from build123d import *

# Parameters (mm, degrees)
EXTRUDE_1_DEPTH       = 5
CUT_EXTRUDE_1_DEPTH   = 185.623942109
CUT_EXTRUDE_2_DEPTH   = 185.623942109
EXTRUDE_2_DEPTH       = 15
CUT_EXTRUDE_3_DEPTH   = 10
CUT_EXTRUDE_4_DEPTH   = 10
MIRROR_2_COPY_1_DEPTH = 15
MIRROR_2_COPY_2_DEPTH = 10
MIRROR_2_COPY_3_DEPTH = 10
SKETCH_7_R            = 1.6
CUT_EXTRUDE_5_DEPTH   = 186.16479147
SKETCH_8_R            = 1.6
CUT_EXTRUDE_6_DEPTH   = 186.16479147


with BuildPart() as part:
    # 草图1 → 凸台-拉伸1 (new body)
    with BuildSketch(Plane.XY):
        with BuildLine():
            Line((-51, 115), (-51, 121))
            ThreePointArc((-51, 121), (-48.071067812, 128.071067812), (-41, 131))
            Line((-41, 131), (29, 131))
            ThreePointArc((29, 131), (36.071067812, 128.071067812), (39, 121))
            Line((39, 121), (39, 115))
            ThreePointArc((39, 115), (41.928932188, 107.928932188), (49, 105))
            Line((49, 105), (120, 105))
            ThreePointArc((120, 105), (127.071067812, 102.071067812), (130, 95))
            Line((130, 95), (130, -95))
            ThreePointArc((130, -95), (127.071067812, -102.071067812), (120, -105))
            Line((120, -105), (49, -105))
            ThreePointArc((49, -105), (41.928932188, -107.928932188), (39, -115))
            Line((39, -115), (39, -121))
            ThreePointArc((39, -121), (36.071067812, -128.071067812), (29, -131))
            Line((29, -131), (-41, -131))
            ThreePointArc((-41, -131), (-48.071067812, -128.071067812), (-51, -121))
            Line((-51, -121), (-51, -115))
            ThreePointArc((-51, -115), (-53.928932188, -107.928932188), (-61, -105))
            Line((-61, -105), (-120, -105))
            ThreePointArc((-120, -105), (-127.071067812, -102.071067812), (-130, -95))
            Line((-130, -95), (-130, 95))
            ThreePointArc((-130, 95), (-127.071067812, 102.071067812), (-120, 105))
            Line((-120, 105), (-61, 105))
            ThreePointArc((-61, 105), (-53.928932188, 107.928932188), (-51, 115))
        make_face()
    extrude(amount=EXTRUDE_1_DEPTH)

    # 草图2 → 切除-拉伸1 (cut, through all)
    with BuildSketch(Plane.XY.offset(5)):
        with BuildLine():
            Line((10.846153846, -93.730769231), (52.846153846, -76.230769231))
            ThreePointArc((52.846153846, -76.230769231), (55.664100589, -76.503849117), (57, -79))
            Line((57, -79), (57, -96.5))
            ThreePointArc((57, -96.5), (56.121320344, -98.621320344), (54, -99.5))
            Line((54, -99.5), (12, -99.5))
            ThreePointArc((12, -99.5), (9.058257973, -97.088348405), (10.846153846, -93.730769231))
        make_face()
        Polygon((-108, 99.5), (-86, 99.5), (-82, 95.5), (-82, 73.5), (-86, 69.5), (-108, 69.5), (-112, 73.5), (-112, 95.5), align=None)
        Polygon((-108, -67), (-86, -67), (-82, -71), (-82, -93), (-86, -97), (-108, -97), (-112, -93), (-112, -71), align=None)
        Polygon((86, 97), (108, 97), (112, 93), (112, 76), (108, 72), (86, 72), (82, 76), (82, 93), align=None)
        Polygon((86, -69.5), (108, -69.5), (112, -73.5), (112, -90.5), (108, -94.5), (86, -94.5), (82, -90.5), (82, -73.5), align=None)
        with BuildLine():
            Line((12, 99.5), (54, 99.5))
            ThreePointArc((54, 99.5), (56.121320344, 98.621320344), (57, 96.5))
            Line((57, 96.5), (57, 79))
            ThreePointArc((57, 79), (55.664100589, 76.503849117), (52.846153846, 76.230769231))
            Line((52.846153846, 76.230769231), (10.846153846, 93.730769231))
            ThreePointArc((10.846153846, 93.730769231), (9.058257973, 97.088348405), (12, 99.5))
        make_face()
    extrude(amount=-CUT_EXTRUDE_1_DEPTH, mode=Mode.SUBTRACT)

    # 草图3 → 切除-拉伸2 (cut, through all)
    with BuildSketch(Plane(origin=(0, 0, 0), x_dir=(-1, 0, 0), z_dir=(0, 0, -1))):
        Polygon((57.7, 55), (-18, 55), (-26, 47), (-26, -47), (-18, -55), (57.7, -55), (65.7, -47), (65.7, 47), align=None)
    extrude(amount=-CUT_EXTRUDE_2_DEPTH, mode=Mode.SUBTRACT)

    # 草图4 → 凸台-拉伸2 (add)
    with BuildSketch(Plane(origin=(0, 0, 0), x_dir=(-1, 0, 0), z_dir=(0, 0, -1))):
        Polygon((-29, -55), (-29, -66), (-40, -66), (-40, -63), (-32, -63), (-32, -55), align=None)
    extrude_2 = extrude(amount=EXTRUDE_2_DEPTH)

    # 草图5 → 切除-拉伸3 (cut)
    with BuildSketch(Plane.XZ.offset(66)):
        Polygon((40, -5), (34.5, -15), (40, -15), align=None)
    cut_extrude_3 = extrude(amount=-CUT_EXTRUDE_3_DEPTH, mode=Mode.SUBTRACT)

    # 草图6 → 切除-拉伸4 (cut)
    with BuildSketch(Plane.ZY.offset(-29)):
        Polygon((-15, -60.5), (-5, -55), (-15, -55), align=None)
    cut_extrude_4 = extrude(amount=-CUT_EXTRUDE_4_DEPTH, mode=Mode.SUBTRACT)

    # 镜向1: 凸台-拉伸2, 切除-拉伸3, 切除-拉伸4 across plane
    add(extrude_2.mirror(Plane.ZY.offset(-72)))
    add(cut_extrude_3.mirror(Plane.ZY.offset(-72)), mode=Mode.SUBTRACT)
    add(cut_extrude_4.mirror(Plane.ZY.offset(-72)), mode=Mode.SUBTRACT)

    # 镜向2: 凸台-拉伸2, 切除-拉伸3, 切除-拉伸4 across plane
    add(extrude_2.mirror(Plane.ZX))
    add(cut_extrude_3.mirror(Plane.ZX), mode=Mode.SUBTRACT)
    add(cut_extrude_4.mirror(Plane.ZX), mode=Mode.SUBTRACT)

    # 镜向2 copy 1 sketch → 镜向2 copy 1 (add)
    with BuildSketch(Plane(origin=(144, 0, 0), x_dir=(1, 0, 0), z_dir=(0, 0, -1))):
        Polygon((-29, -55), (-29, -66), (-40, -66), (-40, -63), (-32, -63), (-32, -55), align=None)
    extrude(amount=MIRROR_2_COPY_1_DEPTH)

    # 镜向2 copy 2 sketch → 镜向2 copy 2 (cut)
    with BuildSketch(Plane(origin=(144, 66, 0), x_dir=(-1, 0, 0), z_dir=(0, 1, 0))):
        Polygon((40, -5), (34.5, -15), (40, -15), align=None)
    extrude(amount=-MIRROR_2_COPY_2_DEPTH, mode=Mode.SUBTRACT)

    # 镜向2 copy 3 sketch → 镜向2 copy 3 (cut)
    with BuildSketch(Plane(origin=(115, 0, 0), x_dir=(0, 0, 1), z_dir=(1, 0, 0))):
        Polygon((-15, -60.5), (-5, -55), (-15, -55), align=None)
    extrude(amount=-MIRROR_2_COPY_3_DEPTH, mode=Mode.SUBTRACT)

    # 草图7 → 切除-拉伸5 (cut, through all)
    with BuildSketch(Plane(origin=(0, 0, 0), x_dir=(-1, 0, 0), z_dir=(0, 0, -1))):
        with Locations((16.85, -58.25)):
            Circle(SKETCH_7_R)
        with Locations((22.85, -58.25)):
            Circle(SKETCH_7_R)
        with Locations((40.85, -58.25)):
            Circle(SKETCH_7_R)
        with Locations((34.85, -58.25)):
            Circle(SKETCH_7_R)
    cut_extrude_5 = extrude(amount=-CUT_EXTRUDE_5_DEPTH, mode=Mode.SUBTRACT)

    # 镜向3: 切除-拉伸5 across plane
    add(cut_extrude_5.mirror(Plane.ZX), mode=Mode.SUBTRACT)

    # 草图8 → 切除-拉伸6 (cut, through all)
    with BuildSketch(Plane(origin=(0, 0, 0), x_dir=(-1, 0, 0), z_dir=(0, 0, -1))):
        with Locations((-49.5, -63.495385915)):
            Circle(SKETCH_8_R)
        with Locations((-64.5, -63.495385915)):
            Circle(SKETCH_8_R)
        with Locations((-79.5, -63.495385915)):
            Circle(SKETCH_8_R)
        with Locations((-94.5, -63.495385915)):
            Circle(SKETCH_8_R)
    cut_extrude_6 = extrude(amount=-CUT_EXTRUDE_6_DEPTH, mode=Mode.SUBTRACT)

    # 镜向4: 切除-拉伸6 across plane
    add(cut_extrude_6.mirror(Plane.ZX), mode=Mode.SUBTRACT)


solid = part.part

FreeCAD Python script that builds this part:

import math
import FreeCAD as App
import Part
import Sketcher

V = App.Vector

doc = App.newDocument("Part")
body = doc.addObject("PartDesign::Body", "Body")

# Sketch on XY plane
sketch1 = doc.addObject("Sketcher::SketchObject", "Sketch")
body.addObject(sketch1)
sketch1.AttachmentSupport = (doc.XY_Plane, [""])
sketch1.MapMode = "FlatFace"
sketch1.addGeometry([
    Part.LineSegment(V(-51, 121, 0), V(-51, 115, 0)),  # 0
    Part.ArcOfCircle(Part.Circle(V(-61, 115, 0), V(0, 0, 1), 10), math.radians(-90), math.radians(0)),  # 1
    Part.LineSegment(V(-61, 105, 0), V(-120, 105, 0)),  # 2
    Part.ArcOfCircle(Part.Circle(V(-120, 95, 0), V(0, 0, 1), 10), math.radians(90), math.radians(180)),  # 3
    Part.LineSegment(V(-130, 95, 0), V(-130, -95, 0)),  # 4
    Part.ArcOfCircle(Part.Circle(V(-120, -95, 0), V(0, 0, 1), 10), math.radians(180), math.radians(270)),  # 5
    Part.LineSegment(V(-120, -105, 0), V(-61, -105, 0)),  # 6
    Part.ArcOfCircle(Part.Circle(V(-61, -115, 0), V(0, 0, 1), 10), math.radians(0), math.radians(90)),  # 7
    Part.LineSegment(V(-51, -115, 0), V(-51, -121, 0)),  # 8
    Part.ArcOfCircle(Part.Circle(V(-41, -121, 0), V(0, 0, 1), 10), math.radians(180), math.radians(270)),  # 9
    Part.LineSegment(V(-41, -131, 0), V(29, -131, 0)),  # 10
    Part.ArcOfCircle(Part.Circle(V(29, -121, 0), V(0, 0, 1), 10), math.radians(-90), math.radians(0)),  # 11
    Part.LineSegment(V(39, -121, 0), V(39, -115, 0)),  # 12
    Part.ArcOfCircle(Part.Circle(V(49, -115, 0), V(0, 0, 1), 10), math.radians(90), math.radians(180)),  # 13
    Part.LineSegment(V(49, -105, 0), V(120, -105, 0)),  # 14
    Part.ArcOfCircle(Part.Circle(V(120, -95, 0), V(0, 0, 1), 10), math.radians(-90), math.radians(0)),  # 15
    Part.LineSegment(V(130, -95, 0), V(130, 95, 0)),  # 16
    Part.ArcOfCircle(Part.Circle(V(120, 95, 0), V(0, 0, 1), 10), math.radians(0), math.radians(90)),  # 17
    Part.LineSegment(V(120, 105, 0), V(49, 105, 0)),  # 18
    Part.ArcOfCircle(Part.Circle(V(49, 115, 0), V(0, 0, 1), 10), math.radians(180), math.radians(270)),  # 19
    Part.LineSegment(V(39, 115, 0), V(39, 121, 0)),  # 20
    Part.ArcOfCircle(Part.Circle(V(29, 121, 0), V(0, 0, 1), 10), math.radians(0), math.radians(90)),  # 21
    Part.LineSegment(V(29, 131, 0), V(-41, 131, 0)),  # 22
    Part.ArcOfCircle(Part.Circle(V(-41, 121, 0), V(0, 0, 1), 10), math.radians(90), math.radians(180)),  # 23
], False)
sketch1.addConstraint([
    Sketcher.Constraint("Tangent", 0, 2, 1, 2),
    Sketcher.Constraint("Tangent", 1, 1, 2, 1),
    Sketcher.Constraint("Tangent", 2, 2, 3, 1),
    Sketcher.Constraint("Tangent", 3, 2, 4, 1),
    Sketcher.Constraint("Tangent", 4, 2, 5, 1),
    Sketcher.Constraint("Tangent", 5, 2, 6, 1),
    Sketcher.Constraint("Tangent", 6, 2, 7, 2),
    Sketcher.Constraint("Tangent", 7, 1, 8, 1),
    Sketcher.Constraint("Tangent", 8, 2, 9, 1),
    Sketcher.Constraint("Tangent", 9, 2, 10, 1),
    Sketcher.Constraint("Tangent", 10, 2, 11, 1),
    Sketcher.Constraint("Tangent", 11, 2, 12, 1),
    Sketcher.Constraint("Tangent", 12, 2, 13, 2),
    Sketcher.Constraint("Tangent", 13, 1, 14, 1),
    Sketcher.Constraint("Tangent", 14, 2, 15, 1),
    Sketcher.Constraint("Tangent", 15, 2, 16, 1),
    Sketcher.Constraint("Tangent", 16, 2, 17, 1),
    Sketcher.Constraint("Tangent", 17, 2, 18, 1),
    Sketcher.Constraint("Tangent", 18, 2, 19, 2),
    Sketcher.Constraint("Tangent", 19, 1, 20, 1),
    Sketcher.Constraint("Tangent", 20, 2, 21, 1),
    Sketcher.Constraint("Tangent", 21, 2, 22, 1),
    Sketcher.Constraint("Tangent", 22, 2, 23, 1),
    Sketcher.Constraint("Tangent", 23, 2, 0, 1),
    Sketcher.Constraint("Vertical", 0),
    Sketcher.Constraint("Horizontal", 2),
    Sketcher.Constraint("Vertical", 4),
    Sketcher.Constraint("Horizontal", 6),
    Sketcher.Constraint("Vertical", 8),
    Sketcher.Constraint("Horizontal", 10),
    Sketcher.Constraint("Vertical", 12),
    Sketcher.Constraint("Horizontal", 14),
    Sketcher.Constraint("Vertical", 16),
    Sketcher.Constraint("Horizontal", 18),
    Sketcher.Constraint("Vertical", 20),
    Sketcher.Constraint("Horizontal", 22),
    Sketcher.Constraint("Equal", 1, 3),
    Sketcher.Constraint("Equal", 3, 5),
    Sketcher.Constraint("Equal", 5, 7),
    Sketcher.Constraint("Equal", 7, 9),
    Sketcher.Constraint("Equal", 9, 11),
    Sketcher.Constraint("Equal", 11, 13),
    Sketcher.Constraint("Equal", 13, 15),
    Sketcher.Constraint("Equal", 15, 17),
    Sketcher.Constraint("Equal", 17, 19),
    Sketcher.Constraint("Equal", 19, 21),
    Sketcher.Constraint("Equal", 21, 23),
    Sketcher.Constraint("Symmetric", 3, 3, 15, 3, -1, 1),
    Sketcher.Constraint("Symmetric", 1, 3, 7, 3, -1),
    Sketcher.Constraint("Symmetric", 13, 3, 19, 3, -1),
    Sketcher.Constraint("Equal", 0, 8),
    Sketcher.Constraint("Radius", 1, 10.0),
    Sketcher.Constraint("DistanceX", 2, 2, 2, 1, 59.0),
    Sketcher.Constraint("DistanceX", 10, 1, 10, 2, 70.0),
    Sketcher.Constraint("DistanceX", 14, 1, 14, 2, 71.0),
    Sketcher.Constraint("DistanceY", 0, 2, 0, 1, 6.0),
    Sketcher.Constraint("DistanceY", 4, 2, 4, 1, 190.0),
])
pad1 = doc.addObject("PartDesign::Pad", "Pad")
body.addObject(pad1)
pad1.Profile = sketch1
pad1.Length = 5

# Sketch on XY plane
sketch2 = doc.addObject("Sketcher::SketchObject", "Sketch001")
body.addObject(sketch2)
sketch2.AttachmentSupport = (doc.XY_Plane, [""])
sketch2.MapMode = "FlatFace"
sketch2.AttachmentOffset = App.Placement(V(0, 0, 5), App.Rotation())
sketch2.addGeometry([
    Part.LineSegment(V(52.846154, -76.230769, 0), V(10.846154, -93.730769, 0)),  # 0
    Part.ArcOfCircle(Part.Circle(V(12, -96.5, 0), V(0, 0, 1), 3), math.radians(112.619865), math.radians(270)),  # 1
    Part.LineSegment(V(12, -99.5, 0), V(54, -99.5, 0)),  # 2
    Part.ArcOfCircle(Part.Circle(V(54, -96.5, 0), V(0, 0, 1), 3), math.radians(-90), math.radians(0)),  # 3
    Part.LineSegment(V(57, -96.5, 0), V(57, -79, 0)),  # 4
    Part.ArcOfCircle(Part.Circle(V(54, -79, 0), V(0, 0, 1), 3), math.radians(0), math.radians(112.619865)),  # 5
    Part.LineSegment(V(-86, 99.5, 0), V(-108, 99.5, 0)),  # 6
    Part.LineSegment(V(-108, 99.5, 0), V(-112, 95.5, 0)),  # 7
    Part.LineSegment(V(-112, 95.5, 0), V(-112, 73.5, 0)),  # 8
    Part.LineSegment(V(-112, 73.5, 0), V(-108, 69.5, 0)),  # 9
    Part.LineSegment(V(-108, 69.5, 0), V(-86, 69.5, 0)),  # 10
    Part.LineSegment(V(-86, 69.5, 0), V(-82, 73.5, 0)),  # 11
    Part.LineSegment(V(-82, 73.5, 0), V(-82, 95.5, 0)),  # 12
    Part.LineSegment(V(-82, 95.5, 0), V(-86, 99.5, 0)),  # 13
    Part.LineSegment(V(-86, -67, 0), V(-108, -67, 0)),  # 14
    Part.LineSegment(V(-108, -67, 0), V(-112, -71, 0)),  # 15
    Part.LineSegment(V(-112, -71, 0), V(-112, -93, 0)),  # 16
    Part.LineSegment(V(-112, -93, 0), V(-108, -97, 0)),  # 17
    Part.LineSegment(V(-108, -97, 0), V(-86, -97, 0)),  # 18
    Part.LineSegment(V(-86, -97, 0), V(-82, -93, 0)),  # 19
    Part.LineSegment(V(-82, -93, 0), V(-82, -71, 0)),  # 20
    Part.LineSegment(V(-82, -71, 0), V(-86, -67, 0)),  # 21
    Part.LineSegment(V(108, 97, 0), V(86, 97, 0)),  # 22
    Part.LineSegment(V(86, 97, 0), V(82, 93, 0)),  # 23
    Part.LineSegment(V(82, 93, 0), V(82, 76, 0)),  # 24
    Part.LineSegment(V(82, 76, 0), V(86, 72, 0)),  # 25
    Part.LineSegment(V(86, 72, 0), V(108, 72, 0)),  # 26
    Part.LineSegment(V(108, 72, 0), V(112, 76, 0)),  # 27
    Part.LineSegment(V(112, 76, 0), V(112, 93, 0)),  # 28
    Part.LineSegment(V(112, 93, 0), V(108, 97, 0)),  # 29
    Part.LineSegment(V(108, -69.5, 0), V(86, -69.5, 0)),  # 30
    Part.LineSegment(V(86, -69.5, 0), V(82, -73.5, 0)),  # 31
    Part.LineSegment(V(82, -73.5, 0), V(82, -90.5, 0)),  # 32
    Part.LineSegment(V(82, -90.5, 0), V(86, -94.5, 0)),  # 33
    Part.LineSegment(V(86, -94.5, 0), V(108, -94.5, 0)),  # 34
    Part.LineSegment(V(108, -94.5, 0), V(112, -90.5, 0)),  # 35
    Part.LineSegment(V(112, -90.5, 0), V(112, -73.5, 0)),  # 36
    Part.LineSegment(V(112, -73.5, 0), V(108, -69.5, 0)),  # 37
    Part.LineSegment(V(54, 99.5, 0), V(12, 99.5, 0)),  # 38
    Part.ArcOfCircle(Part.Circle(V(12, 96.5, 0), V(0, 0, 1), 3), math.radians(90), math.radians(247.380135)),  # 39
    Part.LineSegment(V(10.846154, 93.730769, 0), V(52.846154, 76.230769, 0)),  # 40
    Part.ArcOfCircle(Part.Circle(V(54, 79, 0), V(0, 0, 1), 3), math.radians(-112.619865), math.radians(0)),  # 41
    Part.LineSegment(V(57, 79, 0), V(57, 96.5, 0)),  # 42
    Part.ArcOfCircle(Part.Circle(V(54, 96.5, 0), V(0, 0, 1), 3), math.radians(0), math.radians(90)),  # 43
], False)
sketch2.addConstraint([
    Sketcher.Constraint("Tangent", 0, 2, 1, 1),
    Sketcher.Constraint("Tangent", 1, 2, 2, 1),
    Sketcher.Constraint("Tangent", 2, 2, 3, 1),
    Sketcher.Constraint("Tangent", 3, 2, 4, 1),
    Sketcher.Constraint("Tangent", 4, 2, 5, 1),
    Sketcher.Constraint("Tangent", 5, 2, 0, 1),
    Sketcher.Constraint("Coincident", 6, 2, 7, 1),
    Sketcher.Constraint("Coincident", 7, 2, 8, 1),
    Sketcher.Constraint("Coincident", 8, 2, 9, 1),
    Sketcher.Constraint("Coincident", 9, 2, 10, 1),
    Sketcher.Constraint("Coincident", 10, 2, 11, 1),
    Sketcher.Constraint("Coincident", 11, 2, 12, 1),
    Sketcher.Constraint("Coincident", 12, 2, 13, 1),
    Sketcher.Constraint("Coincident", 13, 2, 6, 1),
    Sketcher.Constraint("Coincident", 14, 2, 15, 1),
    Sketcher.Constraint("Coincident", 15, 2, 16, 1),
    Sketcher.Constraint("Coincident", 16, 2, 17, 1),
    Sketcher.Constraint("Coincident", 17, 2, 18, 1),
    Sketcher.Constraint("Coincident", 18, 2, 19, 1),
    Sketcher.Constraint("Coincident", 19, 2, 20, 1),
    Sketcher.Constraint("Coincident", 20, 2, 21, 1),
    Sketcher.Constraint("Coincident", 21, 2, 14, 1),
    Sketcher.Constraint("Coincident", 22, 2, 23, 1),
    Sketcher.Constraint("Coincident", 23, 2, 24, 1),
    Sketcher.Constraint("Coincident", 24, 2, 25, 1),
    Sketcher.Constraint("Coincident", 25, 2, 26, 1),
    Sketcher.Constraint("Coincident", 26, 2, 27, 1),
    Sketcher.Constraint("Coincident", 27, 2, 28, 1),
    Sketcher.Constraint("Coincident", 28, 2, 29, 1),
    Sketcher.Constraint("Coincident", 29, 2, 22, 1),
    Sketcher.Constraint("Coincident", 30, 2, 31, 1),
    Sketcher.Constraint("Coincident", 31, 2, 32, 1),
    Sketcher.Constraint("Coincident", 32, 2, 33, 1),
    Sketcher.Constraint("Coincident", 33, 2, 34, 1),
    Sketcher.Constraint("Coincident", 34, 2, 35, 1),
    Sketcher.Constraint("Coincident", 35, 2, 36, 1),
    Sketcher.Constraint("Coincident", 36, 2, 37, 1),
    Sketcher.Constraint("Coincident", 37, 2, 30, 1),
    Sketcher.Constraint("Tangent", 38, 2, 39, 1),
    Sketcher.Constraint("Tangent", 39, 2, 40, 1),
    Sketcher.Constraint("Tangent", 40, 2, 41, 1),
    Sketcher.Constraint("Tangent", 41, 2, 42, 1),
    Sketcher.Constraint("Tangent", 42, 2, 43, 1),
    Sketcher.Constraint("Tangent", 43, 2, 38, 1),
    Sketcher.Constraint("Horizontal", 2),
    Sketcher.Constraint("Vertical", 4),
    Sketcher.Constraint("Horizontal", 6),
    Sketcher.Constraint("Vertical", 8),
    Sketcher.Constraint("Horizontal", 10),
    Sketcher.Constraint("Vertical", 12),
    Sketcher.Constraint("Horizontal", 14),
    Sketcher.Constraint("Vertical", 16),
    Sketcher.Constraint("Horizontal", 18),
    Sketcher.Constraint("Vertical", 20),
    Sketcher.Constraint("Horizontal", 22),
    Sketcher.Constraint("Vertical", 24),
    Sketcher.Constraint("Horizontal", 26),
    Sketcher.Constraint("Vertical", 28),
    Sketcher.Constraint("Horizontal", 30),
    Sketcher.Constraint("Vertical", 32),
    Sketcher.Constraint("Horizontal", 34),
    Sketcher.Constraint("Vertical", 36),
    Sketcher.Constraint("Horizontal", 38),
    Sketcher.Constraint("Vertical", 42),
    Sketcher.Constraint("Equal", 1, 3),
    Sketcher.Constraint("Equal", 3, 5),
    Sketcher.Constraint("Equal", 5, 39),
    Sketcher.Constraint("Equal", 39, 41),
    Sketcher.Constraint("Equal", 41, 43),
    Sketcher.Constraint("Symmetric", 18, 2, 22, 2, -1, 1),
    Sketcher.Constraint("Symmetric", 19, 2, 23, 2, -1, 1),
    Sketcher.Constraint("Symmetric", 16, 2, 28, 2, -1, 1),
    Sketcher.Constraint("Symmetric", 10, 2, 30, 2, -1, 1),
    Sketcher.Constraint("Symmetric", 11, 2, 31, 2, -1, 1),
    Sketcher.Constraint("Symmetric", 8, 2, 36, 2, -1, 1),
    Sketcher.Constraint("Symmetric", 1, 3, 39, 3, -1),
    Sketcher.Constraint("Symmetric", 5, 3, 41, 3, -1),
    Sketcher.Constraint("Perpendicular", 7, 9),
    Sketcher.Constraint("Perpendicular", 9, 11),
    Sketcher.Constraint("Perpendicular", 11, 13),
    Sketcher.Constraint("Perpendicular", 13, 15),
    Sketcher.Constraint("Perpendicular", 15, 17),
    Sketcher.Constraint("Perpendicular", 17, 19),
    Sketcher.Constraint("Perpendicular", 19, 21),
    Sketcher.Constraint("Perpendicular", 23, 25),
    Sketcher.Constraint("Perpendicular", 25, 27),
    Sketcher.Constraint("Perpendicular", 27, 29),
    Sketcher.Constraint("Perpendicular", 31, 33),
    Sketcher.Constraint("Perpendicular", 33, 35),
    Sketcher.Constraint("Perpendicular", 35, 37),
    Sketcher.Constraint("Horizontal", 8, 2, 11, 2),
    Sketcher.Constraint("Horizontal", 7, 2, 12, 2),
    Sketcher.Constraint("Horizontal", 16, 2, 19, 2),
    Sketcher.Constraint("Horizontal", 15, 2, 20, 2),
    Sketcher.Constraint("Horizontal", 24, 2, 27, 2),
    Sketcher.Constraint("Horizontal", 32, 2, 35, 2),
    Sketcher.Constraint("Horizontal", 13, 2, 38, 2),
    Sketcher.Constraint("Vertical", 6, 2, 9, 2),
    Sketcher.Constraint("Vertical", 10, 2, 13, 2),
    Sketcher.Constraint("Vertical", 9, 2, 14, 2),
    Sketcher.Constraint("Vertical", 8, 2, 15, 2),
    Sketcher.Constraint("Vertical", 14, 2, 17, 2),
    Sketcher.Constraint("Vertical", 13, 2, 18, 2),
    Sketcher.Constraint("Vertical", 22, 2, 25, 2),
    Sketcher.Constraint("Vertical", 30, 2, 33, 2),
    Sketcher.Constraint("Equal", 34, 8),
    Sketcher.Constraint("Equal", 12, 16),
    Sketcher.Constraint("Equal", 28, 32),
    Sketcher.Constraint("Radius", 1, 3.0),
    Sketcher.Constraint("DistanceX", 2, 1, 2, 2, 42.0),
    Sketcher.Constraint("DistanceX", 6, 2, 6, 1, 22.0),
    Sketcher.Constraint("DistanceY", 24, 2, 24, 1, 17.0),
    Sketcher.Constraint("DistanceY", 4, 1, 4, 2, 17.5),
    Sketcher.Constraint("DistanceX", -1, 1, 1, 3, 12.0),
    Sketcher.Constraint("DistanceY", 5, 3, -1, 1, 79.0),
    Sketcher.Constraint("DistanceX", 6, 2, -1, 1, 108.0),
    Sketcher.Constraint("DistanceX", 7, 2, -1, 1, 112.0),
    Sketcher.Constraint("DistanceY", 14, 2, -1, 1, 67.0),
])
pocket1 = doc.addObject("PartDesign::Pocket", "Pocket")
body.addObject(pocket1)
pocket1.Profile = sketch2
pocket1.Type = "ThroughAll"

# Sketch on XY plane
sketch3 = doc.addObject("Sketcher::SketchObject", "Sketch002")
body.addObject(sketch3)
sketch3.AttachmentSupport = (doc.XY_Plane, [""])
sketch3.MapMode = "FlatFace"
sketch3.addGeometry([
    Part.LineSegment(V(-57.7, 55, 0), V(18, 55, 0)),  # 0
    Part.LineSegment(V(18, 55, 0), V(26, 47, 0)),  # 1
    Part.LineSegment(V(26, 47, 0), V(26, -47, 0)),  # 2
    Part.LineSegment(V(26, -47, 0), V(18, -55, 0)),  # 3
    Part.LineSegment(V(18, -55, 0), V(-57.7, -55, 0)),  # 4
    Part.LineSegment(V(-57.7, -55, 0), V(-65.7, -47, 0)),  # 5
    Part.LineSegment(V(-65.7, -47, 0), V(-65.7, 47, 0)),  # 6
    Part.LineSegment(V(-65.7, 47, 0), V(-57.7, 55, 0)),  # 7
], False)
sketch3.addConstraint([
    Sketcher.Constraint("Coincident", 0, 2, 1, 1),
    Sketcher.Constraint("Coincident", 1, 2, 2, 1),
    Sketcher.Constraint("Coincident", 2, 2, 3, 1),
    Sketcher.Constraint("Coincident", 3, 2, 4, 1),
    Sketcher.Constraint("Coincident", 4, 2, 5, 1),
    Sketcher.Constraint("Coincident", 5, 2, 6, 1),
    Sketcher.Constraint("Coincident", 6, 2, 7, 1),
    Sketcher.Constraint("Coincident", 7, 2, 0, 1),
    Sketcher.Constraint("Horizontal", 0),
    Sketcher.Constraint("Vertical", 2),
    Sketcher.Constraint("Horizontal", 4),
    Sketcher.Constraint("Vertical", 6),
    Sketcher.Constraint("Symmetric", 0, 2, 3, 2, -1),
    Sketcher.Constraint("Perpendicular", 1, 3),
    Sketcher.Constraint("Perpendicular", 3, 5),
    Sketcher.Constraint("Perpendicular", 5, 7),
    Sketcher.Constraint("Horizontal", 2, 2, 5, 2),
    Sketcher.Constraint("Horizontal", 1, 2, 6, 2),
    Sketcher.Constraint("Vertical", 4, 2, 7, 2),
    Sketcher.Constraint("DistanceY", 2, 2, 2, 1, 94.0),
    Sketcher.Constraint("DistanceX", 0, 1, 0, 2, 75.7),
    Sketcher.Constraint("DistanceX", -1, 1, 0, 2, 18.0),
    Sketcher.Constraint("DistanceY", -1, 1, 0, 2, 55.0),
])
pocket2 = doc.addObject("PartDesign::Pocket", "Pocket001")
body.addObject(pocket2)
pocket2.Profile = sketch3
pocket2.Type = "ThroughAll"
pocket2.Reversed = True

# Sketch on XY plane
sketch4 = doc.addObject("Sketcher::SketchObject", "Sketch003")
body.addObject(sketch4)
sketch4.AttachmentSupport = (doc.XY_Plane, [""])
sketch4.MapMode = "FlatFace"
sketch4.addGeometry([
    Part.LineSegment(V(29, -66, 0), V(29, -55, 0)),  # 0
    Part.LineSegment(V(29, -55, 0), V(32, -55, 0)),  # 1
    Part.LineSegment(V(32, -55, 0), V(32, -63, 0)),  # 2
    Part.LineSegment(V(32, -63, 0), V(40, -63, 0)),  # 3
    Part.LineSegment(V(40, -63, 0), V(40, -66, 0)),  # 4
    Part.LineSegment(V(40, -66, 0), V(29, -66, 0)),  # 5
], False)
sketch4.addConstraint([
    Sketcher.Constraint("Coincident", 0, 2, 1, 1),
    Sketcher.Constraint("Coincident", 1, 2, 2, 1),
    Sketcher.Constraint("Coincident", 2, 2, 3, 1),
    Sketcher.Constraint("Coincident", 3, 2, 4, 1),
    Sketcher.Constraint("Coincident", 4, 2, 5, 1),
    Sketcher.Constraint("Coincident", 5, 2, 0, 1),
    Sketcher.Constraint("Vertical", 0),
    Sketcher.Constraint("Horizontal", 1),
    Sketcher.Constraint("Vertical", 2),
    Sketcher.Constraint("Horizontal", 3),
    Sketcher.Constraint("Vertical", 4),
    Sketcher.Constraint("Horizontal", 5),
    Sketcher.Constraint("Equal", 5, 0),
    Sketcher.Constraint("Equal", 3, 2),
    Sketcher.Constraint("DistanceX", 1, 1, 1, 2, 3.0),
    Sketcher.Constraint("DistanceX", 3, 1, 3, 2, 8.0),
    Sketcher.Constraint("DistanceX", -1, 1, 0, 2, 29.0),
    Sketcher.Constraint("DistanceY", 0, 2, -1, 1, 55.0),
])
pad2 = doc.addObject("PartDesign::Pad", "Pad001")
body.addObject(pad2)
pad2.Profile = sketch4
pad2.Length = 15
pad2.Reversed = True

# Sketch on XZ plane
sketch5 = doc.addObject("Sketcher::SketchObject", "Sketch004")
body.addObject(sketch5)
sketch5.AttachmentSupport = (doc.XZ_Plane, [""])
sketch5.MapMode = "FlatFace"
sketch5.AttachmentOffset = App.Placement(V(0, 0, 66), App.Rotation())
sketch5.addGeometry([
    Part.LineSegment(V(40, -5, 0), V(34.5, -15, 0)),
    Part.LineSegment(V(34.5, -15, 0), V(40, -15, 0)),
    Part.LineSegment(V(40, -15, 0), V(40, -5, 0)),
], False)
sketch5.addConstraint([
    Sketcher.Constraint("Coincident", 0, 2, 1, 1),
    Sketcher.Constraint("Coincident", 1, 2, 2, 1),
    Sketcher.Constraint("Coincident", 2, 2, 0, 1),
    Sketcher.Constraint("Horizontal", 1),
    Sketcher.Constraint("Vertical", 2),
    Sketcher.Constraint("DistanceY", 2, 1, 2, 2, 10.0),
    Sketcher.Constraint("DistanceX", 1, 1, 1, 2, 5.5),
    Sketcher.Constraint("DistanceY", 0, 2, -1, 1, 15.0),
    Sketcher.Constraint("DistanceX", -1, 1, 1, 2, 40.0),
])
pocket3 = doc.addObject("PartDesign::Pocket", "Pocket002")
body.addObject(pocket3)
pocket3.Profile = sketch5
pocket3.Length = 10

# Sketch on YZ plane
sketch6 = doc.addObject("Sketcher::SketchObject", "Sketch005")
body.addObject(sketch6)
sketch6.AttachmentSupport = (doc.YZ_Plane, [""])
sketch6.MapMode = "FlatFace"
sketch6.AttachmentOffset = App.Placement(V(0, 0, 29), App.Rotation())
sketch6.addGeometry([
    Part.LineSegment(V(-60.5, -15, 0), V(-55, -5, 0)),
    Part.LineSegment(V(-55, -5, 0), V(-55, -15, 0)),
    Part.LineSegment(V(-55, -15, 0), V(-60.5, -15, 0)),
], False)
sketch6.addConstraint([
    Sketcher.Constraint("Coincident", 0, 2, 1, 1),
    Sketcher.Constraint("Coincident", 1, 2, 2, 1),
    Sketcher.Constraint("Coincident", 2, 2, 0, 1),
    Sketcher.Constraint("Vertical", 1),
    Sketcher.Constraint("Horizontal", 2),
    Sketcher.Constraint("DistanceY", 1, 2, 1, 1, 10.0),
    Sketcher.Constraint("DistanceX", 2, 2, 2, 1, 5.5),
    Sketcher.Constraint("DistanceX", 0, 2, -1, 1, 55.0),
    Sketcher.Constraint("DistanceY", 0, 2, -1, 1, 5.0),
])
pocket4 = doc.addObject("PartDesign::Pocket", "Pocket003")
body.addObject(pocket4)
pocket4.Profile = sketch6
pocket4.Length = 10
pocket4.Reversed = True
doc.recompute()

datumplane = doc.addObject("PartDesign::Plane", "DatumPlane")
body.addObject(datumplane)
datumplane.AttachmentSupport = (doc.YZ_Plane, [""])
datumplane.MapMode = "FlatFace"
datumplane.AttachmentOffset = App.Placement(V(0, 0, 72), App.Rotation())
mirrored = doc.addObject("PartDesign::Mirrored", "Mirrored")
body.addObject(mirrored)
mirrored.Originals = [pad2, pocket3, pocket4]
mirrored.MirrorPlane = (datumplane, [""])
body.Tip = mirrored
doc.recompute()

mirrored2 = doc.addObject("PartDesign::Mirrored", "Mirrored001")
body.addObject(mirrored2)
mirrored2.Originals = [pad2, pocket3, pocket4]
mirrored2.MirrorPlane = (doc.XZ_Plane, [""])
body.Tip = mirrored2

# Sketch on XY plane
sketch7 = doc.addObject("Sketcher::SketchObject", "Sketch006")
body.addObject(sketch7)
sketch7.AttachmentSupport = (doc.XY_Plane, [""])
sketch7.MapMode = "FlatFace"
sketch7.addGeometry([
    Part.LineSegment(V(115, 66, 0), V(115, 55, 0)),  # 0
    Part.LineSegment(V(115, 55, 0), V(112, 55, 0)),  # 1
    Part.LineSegment(V(112, 55, 0), V(112, 63, 0)),  # 2
    Part.LineSegment(V(112, 63, 0), V(104, 63, 0)),  # 3
    Part.LineSegment(V(104, 63, 0), V(104, 66, 0)),  # 4
    Part.LineSegment(V(104, 66, 0), V(115, 66, 0)),  # 5
], False)
sketch7.addConstraint([
    Sketcher.Constraint("Coincident", 0, 2, 1, 1),
    Sketcher.Constraint("Coincident", 1, 2, 2, 1),
    Sketcher.Constraint("Coincident", 2, 2, 3, 1),
    Sketcher.Constraint("Coincident", 3, 2, 4, 1),
    Sketcher.Constraint("Coincident", 4, 2, 5, 1),
    Sketcher.Constraint("Coincident", 5, 2, 0, 1),
    Sketcher.Constraint("Vertical", 0),
    Sketcher.Constraint("Horizontal", 1),
    Sketcher.Constraint("Vertical", 2),
    Sketcher.Constraint("Horizontal", 3),
    Sketcher.Constraint("Vertical", 4),
    Sketcher.Constraint("Horizontal", 5),
    Sketcher.Constraint("Equal", 5, 0),
    Sketcher.Constraint("Equal", 3, 2),
    Sketcher.Constraint("DistanceX", 1, 2, 1, 1, 3.0),
    Sketcher.Constraint("DistanceX", 3, 2, 3, 1, 8.0),
    Sketcher.Constraint("DistanceX", -1, 1, 0, 2, 115.0),
    Sketcher.Constraint("DistanceY", -1, 1, 0, 2, 55.0),
])
pad3 = doc.addObject("PartDesign::Pad", "Pad002")
body.addObject(pad3)
pad3.Profile = sketch7
pad3.Length = 15
pad3.Reversed = True

# Sketch on XZ plane
sketch8 = doc.addObject("Sketcher::SketchObject", "Sketch007")
body.addObject(sketch8)
sketch8.AttachmentSupport = (doc.XZ_Plane, [""])
sketch8.MapMode = "FlatFace"
sketch8.AttachmentOffset = App.Placement(V(0, 0, -66), App.Rotation())
sketch8.addGeometry([
    Part.LineSegment(V(104, -5, 0), V(109.5, -15, 0)),
    Part.LineSegment(V(109.5, -15, 0), V(104, -15, 0)),
    Part.LineSegment(V(104, -15, 0), V(104, -5, 0)),
], False)
sketch8.addConstraint([
    Sketcher.Constraint("Coincident", 0, 2, 1, 1),
    Sketcher.Constraint("Coincident", 1, 2, 2, 1),
    Sketcher.Constraint("Coincident", 2, 2, 0, 1),
    Sketcher.Constraint("Horizontal", 1),
    Sketcher.Constraint("Vertical", 2),
    Sketcher.Constraint("DistanceY", 2, 1, 2, 2, 10.0),
    Sketcher.Constraint("DistanceX", 1, 2, 1, 1, 5.5),
    Sketcher.Constraint("DistanceY", 0, 2, -1, 1, 15.0),
    Sketcher.Constraint("DistanceX", -1, 1, 1, 2, 104.0),
])
pocket5 = doc.addObject("PartDesign::Pocket", "Pocket004")
body.addObject(pocket5)
pocket5.Profile = sketch8
pocket5.Length = 10
pocket5.Reversed = True

# Sketch on YZ plane
sketch9 = doc.addObject("Sketcher::SketchObject", "Sketch008")
body.addObject(sketch9)
sketch9.AttachmentSupport = (doc.YZ_Plane, [""])
sketch9.MapMode = "FlatFace"
sketch9.AttachmentOffset = App.Placement(V(0, 0, 115), App.Rotation())
sketch9.addGeometry([
    Part.LineSegment(V(60.5, -15, 0), V(55, -5, 0)),
    Part.LineSegment(V(55, -5, 0), V(55, -15, 0)),
    Part.LineSegment(V(55, -15, 0), V(60.5, -15, 0)),
], False)
sketch9.addConstraint([
    Sketcher.Constraint("Coincident", 0, 2, 1, 1),
    Sketcher.Constraint("Coincident", 1, 2, 2, 1),
    Sketcher.Constraint("Coincident", 2, 2, 0, 1),
    Sketcher.Constraint("Vertical", 1),
    Sketcher.Constraint("Horizontal", 2),
    Sketcher.Constraint("DistanceY", 1, 2, 1, 1, 10.0),
    Sketcher.Constraint("DistanceX", 2, 1, 2, 2, 5.5),
    Sketcher.Constraint("DistanceX", -1, 1, 0, 2, 55.0),
    Sketcher.Constraint("DistanceY", 0, 2, -1, 1, 5.0),
])
pocket6 = doc.addObject("PartDesign::Pocket", "Pocket005")
body.addObject(pocket6)
pocket6.Profile = sketch9
pocket6.Length = 10

# Sketch on XY plane
sketch10 = doc.addObject("Sketcher::SketchObject", "Sketch009")
body.addObject(sketch10)
sketch10.AttachmentSupport = (doc.XY_Plane, [""])
sketch10.MapMode = "FlatFace"
sketch10.addGeometry([
    Part.Circle(V(-16.85, -58.25, 0), V(0, 0, 1), 1.6),
    Part.Circle(V(-22.85, -58.25, 0), V(0, 0, 1), 1.6),
    Part.Circle(V(-40.85, -58.25, 0), V(0, 0, 1), 1.6),
    Part.Circle(V(-34.85, -58.25, 0), V(0, 0, 1), 1.6),
], False)
sketch10.addConstraint([
    Sketcher.Constraint("Equal", 0, 1),
    Sketcher.Constraint("Equal", 1, 2),
    Sketcher.Constraint("Equal", 2, 3),
    Sketcher.Constraint("Horizontal", 0, 3, 1, 3),
    Sketcher.Constraint("Horizontal", 1, 3, 2, 3),
    Sketcher.Constraint("Horizontal", 2, 3, 3, 3),
    Sketcher.Constraint("Diameter", 0, 3.2),
    Sketcher.Constraint("DistanceX", 1, 3, 0, 3, 6.0),
    Sketcher.Constraint("DistanceX", 2, 3, 1, 3, 18.0),
    Sketcher.Constraint("DistanceX", 2, 3, 3, 3, 6.0),
    Sketcher.Constraint("DistanceX", 0, 3, -1, 1, 16.85),
    Sketcher.Constraint("DistanceY", 0, 3, -1, 1, 58.25),
])
pocket7 = doc.addObject("PartDesign::Pocket", "Pocket006")
body.addObject(pocket7)
pocket7.Profile = sketch10
pocket7.Type = "ThroughAll"
pocket7.Reversed = True
doc.recompute()

mirrored3 = doc.addObject("PartDesign::Mirrored", "Mirrored002")
body.addObject(mirrored3)
mirrored3.Originals = [pocket7]
mirrored3.MirrorPlane = (doc.XZ_Plane, [""])
body.Tip = mirrored3

# Sketch on XY plane
sketch11 = doc.addObject("Sketcher::SketchObject", "Sketch010")
body.addObject(sketch11)
sketch11.AttachmentSupport = (doc.XY_Plane, [""])
sketch11.MapMode = "FlatFace"
sketch11.addGeometry([
    Part.Circle(V(49.5, -63.495386, 0), V(0, 0, 1), 1.6),
    Part.Circle(V(64.5, -63.495386, 0), V(0, 0, 1), 1.6),
    Part.Circle(V(79.5, -63.495386, 0), V(0, 0, 1), 1.6),
    Part.Circle(V(94.5, -63.495386, 0), V(0, 0, 1), 1.6),
], False)
sketch11.addConstraint([
    Sketcher.Constraint("Equal", 0, 1),
    Sketcher.Constraint("Equal", 1, 2),
    Sketcher.Constraint("Equal", 2, 3),
    Sketcher.Constraint("Horizontal", 0, 3, 1, 3),
    Sketcher.Constraint("Horizontal", 1, 3, 2, 3),
    Sketcher.Constraint("Horizontal", 2, 3, 3, 3),
    Sketcher.Constraint("Diameter", 0, 3.2),
    Sketcher.Constraint("DistanceX", 0, 3, 1, 3, 15.0),
    Sketcher.Constraint("DistanceX", 1, 3, 2, 3, 15.0),
    Sketcher.Constraint("DistanceX", 2, 3, 3, 3, 15.0),
    Sketcher.Constraint("DistanceX", -1, 1, 0, 3, 49.5),
    Sketcher.Constraint("DistanceY", 0, 3, -1, 1, 63.495386),
])
pocket8 = doc.addObject("PartDesign::Pocket", "Pocket007")
body.addObject(pocket8)
pocket8.Profile = sketch11
pocket8.Type = "ThroughAll"
pocket8.Reversed = True
doc.recompute()

mirrored4 = doc.addObject("PartDesign::Mirrored", "Mirrored003")
body.addObject(mirrored4)
mirrored4.Originals = [pocket8]
mirrored4.MirrorPlane = (doc.XZ_Plane, [""])
body.Tip = mirrored4

doc.recompute()
